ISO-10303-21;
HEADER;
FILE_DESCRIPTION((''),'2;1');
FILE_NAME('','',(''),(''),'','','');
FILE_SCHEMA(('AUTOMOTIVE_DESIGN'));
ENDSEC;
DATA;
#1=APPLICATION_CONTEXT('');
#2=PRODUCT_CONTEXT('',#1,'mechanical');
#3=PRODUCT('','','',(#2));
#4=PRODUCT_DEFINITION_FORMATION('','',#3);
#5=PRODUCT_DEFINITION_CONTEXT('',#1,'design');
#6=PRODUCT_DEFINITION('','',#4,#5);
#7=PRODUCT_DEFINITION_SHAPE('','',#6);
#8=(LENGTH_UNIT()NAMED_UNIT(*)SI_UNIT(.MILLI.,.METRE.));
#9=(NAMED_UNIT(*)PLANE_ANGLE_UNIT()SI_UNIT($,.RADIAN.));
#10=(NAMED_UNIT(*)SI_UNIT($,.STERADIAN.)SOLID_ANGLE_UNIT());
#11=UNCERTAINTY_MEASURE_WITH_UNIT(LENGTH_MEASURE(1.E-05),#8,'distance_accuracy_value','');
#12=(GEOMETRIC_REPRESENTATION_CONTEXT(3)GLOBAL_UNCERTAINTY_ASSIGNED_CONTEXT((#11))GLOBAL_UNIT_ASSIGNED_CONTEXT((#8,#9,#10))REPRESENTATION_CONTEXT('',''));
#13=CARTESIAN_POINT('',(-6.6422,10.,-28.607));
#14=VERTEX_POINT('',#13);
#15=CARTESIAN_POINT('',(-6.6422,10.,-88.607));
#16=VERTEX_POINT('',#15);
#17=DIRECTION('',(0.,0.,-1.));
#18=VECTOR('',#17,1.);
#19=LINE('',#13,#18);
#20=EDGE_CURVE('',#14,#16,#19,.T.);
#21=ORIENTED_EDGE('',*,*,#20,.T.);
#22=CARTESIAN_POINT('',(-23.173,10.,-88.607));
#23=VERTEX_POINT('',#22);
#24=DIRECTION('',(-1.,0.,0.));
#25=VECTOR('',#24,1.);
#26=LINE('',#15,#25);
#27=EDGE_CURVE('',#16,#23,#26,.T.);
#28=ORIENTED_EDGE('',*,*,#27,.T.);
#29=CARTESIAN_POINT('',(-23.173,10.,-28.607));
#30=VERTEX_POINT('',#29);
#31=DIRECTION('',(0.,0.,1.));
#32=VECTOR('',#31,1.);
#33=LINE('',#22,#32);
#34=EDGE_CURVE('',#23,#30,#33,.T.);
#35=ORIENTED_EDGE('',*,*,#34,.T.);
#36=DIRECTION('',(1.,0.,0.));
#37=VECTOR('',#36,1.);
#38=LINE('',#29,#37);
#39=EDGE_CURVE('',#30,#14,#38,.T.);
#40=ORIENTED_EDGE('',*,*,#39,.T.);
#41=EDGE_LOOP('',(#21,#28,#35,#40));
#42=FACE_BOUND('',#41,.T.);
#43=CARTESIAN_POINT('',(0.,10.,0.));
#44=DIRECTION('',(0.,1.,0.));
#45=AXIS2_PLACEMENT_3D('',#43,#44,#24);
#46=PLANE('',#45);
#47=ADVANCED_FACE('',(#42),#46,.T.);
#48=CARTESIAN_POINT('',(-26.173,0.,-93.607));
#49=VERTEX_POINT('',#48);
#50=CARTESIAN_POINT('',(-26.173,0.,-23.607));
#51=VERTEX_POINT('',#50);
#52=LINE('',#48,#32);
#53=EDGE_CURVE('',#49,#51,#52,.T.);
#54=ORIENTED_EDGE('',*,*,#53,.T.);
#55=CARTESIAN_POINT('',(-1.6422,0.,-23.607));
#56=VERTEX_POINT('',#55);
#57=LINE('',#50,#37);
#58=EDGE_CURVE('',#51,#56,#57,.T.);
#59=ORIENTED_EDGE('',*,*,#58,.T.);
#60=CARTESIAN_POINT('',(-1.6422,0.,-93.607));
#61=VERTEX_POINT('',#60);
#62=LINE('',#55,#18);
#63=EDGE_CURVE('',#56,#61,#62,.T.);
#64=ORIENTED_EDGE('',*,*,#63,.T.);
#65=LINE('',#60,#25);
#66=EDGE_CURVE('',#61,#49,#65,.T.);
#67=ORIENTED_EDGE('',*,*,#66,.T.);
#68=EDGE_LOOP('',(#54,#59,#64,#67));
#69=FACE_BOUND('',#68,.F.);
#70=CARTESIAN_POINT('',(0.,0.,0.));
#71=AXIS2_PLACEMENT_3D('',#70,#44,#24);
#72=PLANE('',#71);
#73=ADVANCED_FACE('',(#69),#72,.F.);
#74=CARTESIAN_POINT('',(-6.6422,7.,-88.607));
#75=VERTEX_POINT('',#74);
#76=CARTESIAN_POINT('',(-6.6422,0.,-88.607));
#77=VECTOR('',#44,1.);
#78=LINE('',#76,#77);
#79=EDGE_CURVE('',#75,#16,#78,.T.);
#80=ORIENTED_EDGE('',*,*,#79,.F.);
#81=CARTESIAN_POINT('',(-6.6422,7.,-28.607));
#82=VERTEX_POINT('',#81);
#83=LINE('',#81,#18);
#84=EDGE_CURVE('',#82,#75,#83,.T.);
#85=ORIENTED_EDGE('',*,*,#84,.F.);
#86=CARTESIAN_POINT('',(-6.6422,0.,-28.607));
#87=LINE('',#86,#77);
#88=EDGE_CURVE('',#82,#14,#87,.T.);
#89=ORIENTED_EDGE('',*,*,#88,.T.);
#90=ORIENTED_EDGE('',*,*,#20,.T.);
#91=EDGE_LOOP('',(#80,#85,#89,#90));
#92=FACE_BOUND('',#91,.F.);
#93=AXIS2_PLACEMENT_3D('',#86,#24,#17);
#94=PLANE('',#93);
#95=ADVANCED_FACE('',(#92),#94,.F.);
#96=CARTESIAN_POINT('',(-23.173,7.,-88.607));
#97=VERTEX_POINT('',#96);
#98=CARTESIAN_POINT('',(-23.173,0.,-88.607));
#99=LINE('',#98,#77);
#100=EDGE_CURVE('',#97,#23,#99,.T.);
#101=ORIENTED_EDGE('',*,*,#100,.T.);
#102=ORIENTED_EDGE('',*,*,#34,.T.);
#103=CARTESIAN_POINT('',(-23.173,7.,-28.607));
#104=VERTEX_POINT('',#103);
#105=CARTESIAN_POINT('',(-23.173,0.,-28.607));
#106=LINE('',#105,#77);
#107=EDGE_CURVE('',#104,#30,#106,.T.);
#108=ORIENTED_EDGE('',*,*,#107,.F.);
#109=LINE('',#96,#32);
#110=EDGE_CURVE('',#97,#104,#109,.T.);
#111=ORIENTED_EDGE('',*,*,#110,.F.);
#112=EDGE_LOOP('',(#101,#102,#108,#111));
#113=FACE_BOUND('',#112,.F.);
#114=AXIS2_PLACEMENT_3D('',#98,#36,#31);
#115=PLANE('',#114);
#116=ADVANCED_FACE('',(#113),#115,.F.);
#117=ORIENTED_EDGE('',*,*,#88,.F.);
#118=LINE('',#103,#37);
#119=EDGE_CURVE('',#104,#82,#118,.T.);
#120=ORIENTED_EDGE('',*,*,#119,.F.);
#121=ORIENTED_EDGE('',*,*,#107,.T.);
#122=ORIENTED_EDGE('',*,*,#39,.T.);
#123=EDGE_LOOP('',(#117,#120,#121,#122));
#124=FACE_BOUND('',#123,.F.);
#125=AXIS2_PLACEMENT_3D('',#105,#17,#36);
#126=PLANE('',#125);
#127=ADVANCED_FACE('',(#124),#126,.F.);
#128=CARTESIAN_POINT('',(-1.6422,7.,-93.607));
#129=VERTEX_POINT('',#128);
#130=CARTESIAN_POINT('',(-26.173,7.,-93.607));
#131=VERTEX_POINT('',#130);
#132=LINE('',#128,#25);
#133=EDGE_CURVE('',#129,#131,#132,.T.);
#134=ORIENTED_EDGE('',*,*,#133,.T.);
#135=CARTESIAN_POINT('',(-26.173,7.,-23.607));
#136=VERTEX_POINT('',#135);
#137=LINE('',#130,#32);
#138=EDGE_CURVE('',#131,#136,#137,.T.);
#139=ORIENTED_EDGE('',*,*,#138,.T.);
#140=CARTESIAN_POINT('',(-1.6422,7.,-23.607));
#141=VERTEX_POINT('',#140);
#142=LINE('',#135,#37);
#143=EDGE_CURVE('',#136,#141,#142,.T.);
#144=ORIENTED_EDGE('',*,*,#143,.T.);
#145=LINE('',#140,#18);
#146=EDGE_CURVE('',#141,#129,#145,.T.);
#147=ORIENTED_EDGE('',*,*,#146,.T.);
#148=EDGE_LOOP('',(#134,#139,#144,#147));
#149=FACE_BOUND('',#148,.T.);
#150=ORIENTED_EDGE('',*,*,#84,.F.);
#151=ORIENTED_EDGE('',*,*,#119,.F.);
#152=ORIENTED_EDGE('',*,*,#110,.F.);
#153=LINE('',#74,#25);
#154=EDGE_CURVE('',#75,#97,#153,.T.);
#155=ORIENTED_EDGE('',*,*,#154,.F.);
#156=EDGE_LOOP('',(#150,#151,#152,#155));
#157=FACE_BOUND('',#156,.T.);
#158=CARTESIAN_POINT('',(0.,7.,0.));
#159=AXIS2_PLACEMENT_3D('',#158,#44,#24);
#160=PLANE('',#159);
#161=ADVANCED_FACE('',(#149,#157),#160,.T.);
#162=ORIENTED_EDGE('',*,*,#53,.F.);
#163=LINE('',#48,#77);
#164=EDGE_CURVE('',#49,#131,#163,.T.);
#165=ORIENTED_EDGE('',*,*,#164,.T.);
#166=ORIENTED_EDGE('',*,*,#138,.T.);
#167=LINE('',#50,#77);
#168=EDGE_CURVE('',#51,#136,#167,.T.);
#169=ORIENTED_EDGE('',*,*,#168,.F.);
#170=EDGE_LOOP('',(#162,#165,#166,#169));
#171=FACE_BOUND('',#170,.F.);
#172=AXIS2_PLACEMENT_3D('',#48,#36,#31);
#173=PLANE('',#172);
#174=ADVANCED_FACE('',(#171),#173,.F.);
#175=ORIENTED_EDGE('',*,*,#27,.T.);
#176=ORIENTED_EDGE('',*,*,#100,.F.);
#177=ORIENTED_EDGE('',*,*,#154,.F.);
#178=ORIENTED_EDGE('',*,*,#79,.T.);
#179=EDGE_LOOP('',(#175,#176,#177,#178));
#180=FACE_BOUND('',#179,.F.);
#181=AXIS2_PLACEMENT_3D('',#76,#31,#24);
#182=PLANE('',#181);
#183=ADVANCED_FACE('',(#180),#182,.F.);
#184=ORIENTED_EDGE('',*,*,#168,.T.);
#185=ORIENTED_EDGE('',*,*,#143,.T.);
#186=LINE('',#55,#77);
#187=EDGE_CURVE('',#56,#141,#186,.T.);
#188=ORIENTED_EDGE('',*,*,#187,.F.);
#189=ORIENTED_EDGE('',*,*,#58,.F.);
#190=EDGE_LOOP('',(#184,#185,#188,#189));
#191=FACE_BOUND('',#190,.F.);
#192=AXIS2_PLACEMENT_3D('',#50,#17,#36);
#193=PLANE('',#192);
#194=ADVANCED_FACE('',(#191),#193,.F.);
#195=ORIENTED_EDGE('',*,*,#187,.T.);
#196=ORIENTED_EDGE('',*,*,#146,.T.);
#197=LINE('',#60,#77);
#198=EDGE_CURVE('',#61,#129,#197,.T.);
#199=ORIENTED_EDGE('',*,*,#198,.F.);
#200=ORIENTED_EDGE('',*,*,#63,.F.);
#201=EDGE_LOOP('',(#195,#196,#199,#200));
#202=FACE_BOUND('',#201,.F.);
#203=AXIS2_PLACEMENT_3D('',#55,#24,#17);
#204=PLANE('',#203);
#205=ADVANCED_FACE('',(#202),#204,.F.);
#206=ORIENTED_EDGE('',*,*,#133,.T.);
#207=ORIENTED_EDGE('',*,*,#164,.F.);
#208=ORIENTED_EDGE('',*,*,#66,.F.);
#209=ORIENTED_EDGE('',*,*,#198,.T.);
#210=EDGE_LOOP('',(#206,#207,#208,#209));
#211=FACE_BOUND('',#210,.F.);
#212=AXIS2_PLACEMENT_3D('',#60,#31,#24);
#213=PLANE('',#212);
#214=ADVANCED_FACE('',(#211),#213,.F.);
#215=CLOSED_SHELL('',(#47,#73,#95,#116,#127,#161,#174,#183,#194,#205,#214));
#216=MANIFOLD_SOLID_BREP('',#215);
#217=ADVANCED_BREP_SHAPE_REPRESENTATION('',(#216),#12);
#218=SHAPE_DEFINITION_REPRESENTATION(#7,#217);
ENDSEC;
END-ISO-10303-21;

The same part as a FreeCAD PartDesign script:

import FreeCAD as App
import Part
import Sketcher

V = App.Vector
Q = App.Units.Quantity


def add_polygon(sketch, points):
    """Adds a closed chain of lines whose ends are joined by coincident constraints."""
    first, n = sketch.GeometryCount, len(points)
    for a, b in zip(points, points[1:] + points[:1]):
        sketch.addGeometry(Part.LineSegment(App.Vector(*a, 0), App.Vector(*b, 0)), False)
    for i in range(n):
        sketch.addConstraint(Sketcher.Constraint("Coincident", first + i, 2, first + (i + 1) % n, 1))

doc = App.newDocument("Part")
body = doc.addObject("PartDesign::Body", "Body")

# Sketch on XZ plane
sketch1 = body.newObject("Sketcher::SketchObject", "Sketch")
sketch1.AttachmentSupport = (doc.getObject("XZ_Plane"), [""])
sketch1.MapMode = "FlatFace"
add_polygon(sketch1, [(-26, -94), (-26, -24), (-2, -24), (-2, -94)])  # lines 0-3
add_polygon(sketch1, [(-7, -29), (-23, -29), (-23, -89), (-7, -89)])  # lines 4-7
sketch1.addConstraint(Sketcher.Constraint("Vertical", 0))
sketch1.addConstraint(Sketcher.Constraint("Horizontal", 1))
sketch1.addConstraint(Sketcher.Constraint("Vertical", 2))
sketch1.addConstraint(Sketcher.Constraint("Horizontal", 3))
sketch1.addConstraint(Sketcher.Constraint("Horizontal", 4))
sketch1.addConstraint(Sketcher.Constraint("Vertical", 5))
sketch1.addConstraint(Sketcher.Constraint("Horizontal", 6))
sketch1.addConstraint(Sketcher.Constraint("Vertical", 7))
sketch1.addConstraint(Sketcher.Constraint("DistanceY", 0, 1, 0, 2, Q("70 mm")))
sketch1.addConstraint(Sketcher.Constraint("DistanceY", 5, 2, 5, 1, Q("60 mm")))
sketch1.addConstraint(Sketcher.Constraint("DistanceX", 0, 2, 4, 2, Q("3 mm")))
sketch1.addConstraint(Sketcher.Constraint("DistanceY", 4, 2, 0, 2, Q("5 mm")))
sketch1.addConstraint(Sketcher.Constraint("DistanceX", 6, 2, 2, 2, Q("5 mm")))
sketch1.addConstraint(Sketcher.Constraint("DistanceX", 1, 1, 1, 2, Q("24.5308 mm")))
sketch1.addConstraint(Sketcher.Constraint("DistanceX", 0, 2, -1, 1, Q("26.173 mm")))
sketch1.addConstraint(Sketcher.Constraint("DistanceY", 0, 2, -1, 1, Q("23.607 mm")))
pad1 = body.newObject("PartDesign::Pad", "Pad")
pad1.Profile = sketch1
pad1.Length = 7
pad1.Reversed = True

# Sketch on XZ plane
sketch2 = body.newObject("Sketcher::SketchObject", "Sketch001")
sketch2.AttachmentSupport = (doc.getObject("XZ_Plane"), [""])
sketch2.MapMode = "FlatFace"
add_polygon(sketch2, [(-23, -89), (-23, -29), (-7, -29), (-7, -89)])  # lines 0-3
sketch2.addConstraint(Sketcher.Constraint("Vertical", 0))
sketch2.addConstraint(Sketcher.Constraint("Horizontal", 1))
sketch2.addConstraint(Sketcher.Constraint("Vertical", 2))
sketch2.addConstraint(Sketcher.Constraint("Horizontal", 3))
sketch2.addConstraint(Sketcher.Constraint("DistanceY", 0, 1, 0, 2, Q("60 mm")))
sketch2.addConstraint(Sketcher.Constraint("DistanceX", 1, 1, 1, 2, Q("16.5308 mm")))
sketch2.addConstraint(Sketcher.Constraint("DistanceX", 0, 2, -1, 1, Q("23.173 mm")))
sketch2.addConstraint(Sketcher.Constraint("DistanceY", 0, 2, -1, 1, Q("28.607 mm")))
pad2 = body.newObject("PartDesign::Pad", "Pad001")
pad2.Profile = sketch2
pad2.Length = 10
pad2.Reversed = True

doc.recompute()
